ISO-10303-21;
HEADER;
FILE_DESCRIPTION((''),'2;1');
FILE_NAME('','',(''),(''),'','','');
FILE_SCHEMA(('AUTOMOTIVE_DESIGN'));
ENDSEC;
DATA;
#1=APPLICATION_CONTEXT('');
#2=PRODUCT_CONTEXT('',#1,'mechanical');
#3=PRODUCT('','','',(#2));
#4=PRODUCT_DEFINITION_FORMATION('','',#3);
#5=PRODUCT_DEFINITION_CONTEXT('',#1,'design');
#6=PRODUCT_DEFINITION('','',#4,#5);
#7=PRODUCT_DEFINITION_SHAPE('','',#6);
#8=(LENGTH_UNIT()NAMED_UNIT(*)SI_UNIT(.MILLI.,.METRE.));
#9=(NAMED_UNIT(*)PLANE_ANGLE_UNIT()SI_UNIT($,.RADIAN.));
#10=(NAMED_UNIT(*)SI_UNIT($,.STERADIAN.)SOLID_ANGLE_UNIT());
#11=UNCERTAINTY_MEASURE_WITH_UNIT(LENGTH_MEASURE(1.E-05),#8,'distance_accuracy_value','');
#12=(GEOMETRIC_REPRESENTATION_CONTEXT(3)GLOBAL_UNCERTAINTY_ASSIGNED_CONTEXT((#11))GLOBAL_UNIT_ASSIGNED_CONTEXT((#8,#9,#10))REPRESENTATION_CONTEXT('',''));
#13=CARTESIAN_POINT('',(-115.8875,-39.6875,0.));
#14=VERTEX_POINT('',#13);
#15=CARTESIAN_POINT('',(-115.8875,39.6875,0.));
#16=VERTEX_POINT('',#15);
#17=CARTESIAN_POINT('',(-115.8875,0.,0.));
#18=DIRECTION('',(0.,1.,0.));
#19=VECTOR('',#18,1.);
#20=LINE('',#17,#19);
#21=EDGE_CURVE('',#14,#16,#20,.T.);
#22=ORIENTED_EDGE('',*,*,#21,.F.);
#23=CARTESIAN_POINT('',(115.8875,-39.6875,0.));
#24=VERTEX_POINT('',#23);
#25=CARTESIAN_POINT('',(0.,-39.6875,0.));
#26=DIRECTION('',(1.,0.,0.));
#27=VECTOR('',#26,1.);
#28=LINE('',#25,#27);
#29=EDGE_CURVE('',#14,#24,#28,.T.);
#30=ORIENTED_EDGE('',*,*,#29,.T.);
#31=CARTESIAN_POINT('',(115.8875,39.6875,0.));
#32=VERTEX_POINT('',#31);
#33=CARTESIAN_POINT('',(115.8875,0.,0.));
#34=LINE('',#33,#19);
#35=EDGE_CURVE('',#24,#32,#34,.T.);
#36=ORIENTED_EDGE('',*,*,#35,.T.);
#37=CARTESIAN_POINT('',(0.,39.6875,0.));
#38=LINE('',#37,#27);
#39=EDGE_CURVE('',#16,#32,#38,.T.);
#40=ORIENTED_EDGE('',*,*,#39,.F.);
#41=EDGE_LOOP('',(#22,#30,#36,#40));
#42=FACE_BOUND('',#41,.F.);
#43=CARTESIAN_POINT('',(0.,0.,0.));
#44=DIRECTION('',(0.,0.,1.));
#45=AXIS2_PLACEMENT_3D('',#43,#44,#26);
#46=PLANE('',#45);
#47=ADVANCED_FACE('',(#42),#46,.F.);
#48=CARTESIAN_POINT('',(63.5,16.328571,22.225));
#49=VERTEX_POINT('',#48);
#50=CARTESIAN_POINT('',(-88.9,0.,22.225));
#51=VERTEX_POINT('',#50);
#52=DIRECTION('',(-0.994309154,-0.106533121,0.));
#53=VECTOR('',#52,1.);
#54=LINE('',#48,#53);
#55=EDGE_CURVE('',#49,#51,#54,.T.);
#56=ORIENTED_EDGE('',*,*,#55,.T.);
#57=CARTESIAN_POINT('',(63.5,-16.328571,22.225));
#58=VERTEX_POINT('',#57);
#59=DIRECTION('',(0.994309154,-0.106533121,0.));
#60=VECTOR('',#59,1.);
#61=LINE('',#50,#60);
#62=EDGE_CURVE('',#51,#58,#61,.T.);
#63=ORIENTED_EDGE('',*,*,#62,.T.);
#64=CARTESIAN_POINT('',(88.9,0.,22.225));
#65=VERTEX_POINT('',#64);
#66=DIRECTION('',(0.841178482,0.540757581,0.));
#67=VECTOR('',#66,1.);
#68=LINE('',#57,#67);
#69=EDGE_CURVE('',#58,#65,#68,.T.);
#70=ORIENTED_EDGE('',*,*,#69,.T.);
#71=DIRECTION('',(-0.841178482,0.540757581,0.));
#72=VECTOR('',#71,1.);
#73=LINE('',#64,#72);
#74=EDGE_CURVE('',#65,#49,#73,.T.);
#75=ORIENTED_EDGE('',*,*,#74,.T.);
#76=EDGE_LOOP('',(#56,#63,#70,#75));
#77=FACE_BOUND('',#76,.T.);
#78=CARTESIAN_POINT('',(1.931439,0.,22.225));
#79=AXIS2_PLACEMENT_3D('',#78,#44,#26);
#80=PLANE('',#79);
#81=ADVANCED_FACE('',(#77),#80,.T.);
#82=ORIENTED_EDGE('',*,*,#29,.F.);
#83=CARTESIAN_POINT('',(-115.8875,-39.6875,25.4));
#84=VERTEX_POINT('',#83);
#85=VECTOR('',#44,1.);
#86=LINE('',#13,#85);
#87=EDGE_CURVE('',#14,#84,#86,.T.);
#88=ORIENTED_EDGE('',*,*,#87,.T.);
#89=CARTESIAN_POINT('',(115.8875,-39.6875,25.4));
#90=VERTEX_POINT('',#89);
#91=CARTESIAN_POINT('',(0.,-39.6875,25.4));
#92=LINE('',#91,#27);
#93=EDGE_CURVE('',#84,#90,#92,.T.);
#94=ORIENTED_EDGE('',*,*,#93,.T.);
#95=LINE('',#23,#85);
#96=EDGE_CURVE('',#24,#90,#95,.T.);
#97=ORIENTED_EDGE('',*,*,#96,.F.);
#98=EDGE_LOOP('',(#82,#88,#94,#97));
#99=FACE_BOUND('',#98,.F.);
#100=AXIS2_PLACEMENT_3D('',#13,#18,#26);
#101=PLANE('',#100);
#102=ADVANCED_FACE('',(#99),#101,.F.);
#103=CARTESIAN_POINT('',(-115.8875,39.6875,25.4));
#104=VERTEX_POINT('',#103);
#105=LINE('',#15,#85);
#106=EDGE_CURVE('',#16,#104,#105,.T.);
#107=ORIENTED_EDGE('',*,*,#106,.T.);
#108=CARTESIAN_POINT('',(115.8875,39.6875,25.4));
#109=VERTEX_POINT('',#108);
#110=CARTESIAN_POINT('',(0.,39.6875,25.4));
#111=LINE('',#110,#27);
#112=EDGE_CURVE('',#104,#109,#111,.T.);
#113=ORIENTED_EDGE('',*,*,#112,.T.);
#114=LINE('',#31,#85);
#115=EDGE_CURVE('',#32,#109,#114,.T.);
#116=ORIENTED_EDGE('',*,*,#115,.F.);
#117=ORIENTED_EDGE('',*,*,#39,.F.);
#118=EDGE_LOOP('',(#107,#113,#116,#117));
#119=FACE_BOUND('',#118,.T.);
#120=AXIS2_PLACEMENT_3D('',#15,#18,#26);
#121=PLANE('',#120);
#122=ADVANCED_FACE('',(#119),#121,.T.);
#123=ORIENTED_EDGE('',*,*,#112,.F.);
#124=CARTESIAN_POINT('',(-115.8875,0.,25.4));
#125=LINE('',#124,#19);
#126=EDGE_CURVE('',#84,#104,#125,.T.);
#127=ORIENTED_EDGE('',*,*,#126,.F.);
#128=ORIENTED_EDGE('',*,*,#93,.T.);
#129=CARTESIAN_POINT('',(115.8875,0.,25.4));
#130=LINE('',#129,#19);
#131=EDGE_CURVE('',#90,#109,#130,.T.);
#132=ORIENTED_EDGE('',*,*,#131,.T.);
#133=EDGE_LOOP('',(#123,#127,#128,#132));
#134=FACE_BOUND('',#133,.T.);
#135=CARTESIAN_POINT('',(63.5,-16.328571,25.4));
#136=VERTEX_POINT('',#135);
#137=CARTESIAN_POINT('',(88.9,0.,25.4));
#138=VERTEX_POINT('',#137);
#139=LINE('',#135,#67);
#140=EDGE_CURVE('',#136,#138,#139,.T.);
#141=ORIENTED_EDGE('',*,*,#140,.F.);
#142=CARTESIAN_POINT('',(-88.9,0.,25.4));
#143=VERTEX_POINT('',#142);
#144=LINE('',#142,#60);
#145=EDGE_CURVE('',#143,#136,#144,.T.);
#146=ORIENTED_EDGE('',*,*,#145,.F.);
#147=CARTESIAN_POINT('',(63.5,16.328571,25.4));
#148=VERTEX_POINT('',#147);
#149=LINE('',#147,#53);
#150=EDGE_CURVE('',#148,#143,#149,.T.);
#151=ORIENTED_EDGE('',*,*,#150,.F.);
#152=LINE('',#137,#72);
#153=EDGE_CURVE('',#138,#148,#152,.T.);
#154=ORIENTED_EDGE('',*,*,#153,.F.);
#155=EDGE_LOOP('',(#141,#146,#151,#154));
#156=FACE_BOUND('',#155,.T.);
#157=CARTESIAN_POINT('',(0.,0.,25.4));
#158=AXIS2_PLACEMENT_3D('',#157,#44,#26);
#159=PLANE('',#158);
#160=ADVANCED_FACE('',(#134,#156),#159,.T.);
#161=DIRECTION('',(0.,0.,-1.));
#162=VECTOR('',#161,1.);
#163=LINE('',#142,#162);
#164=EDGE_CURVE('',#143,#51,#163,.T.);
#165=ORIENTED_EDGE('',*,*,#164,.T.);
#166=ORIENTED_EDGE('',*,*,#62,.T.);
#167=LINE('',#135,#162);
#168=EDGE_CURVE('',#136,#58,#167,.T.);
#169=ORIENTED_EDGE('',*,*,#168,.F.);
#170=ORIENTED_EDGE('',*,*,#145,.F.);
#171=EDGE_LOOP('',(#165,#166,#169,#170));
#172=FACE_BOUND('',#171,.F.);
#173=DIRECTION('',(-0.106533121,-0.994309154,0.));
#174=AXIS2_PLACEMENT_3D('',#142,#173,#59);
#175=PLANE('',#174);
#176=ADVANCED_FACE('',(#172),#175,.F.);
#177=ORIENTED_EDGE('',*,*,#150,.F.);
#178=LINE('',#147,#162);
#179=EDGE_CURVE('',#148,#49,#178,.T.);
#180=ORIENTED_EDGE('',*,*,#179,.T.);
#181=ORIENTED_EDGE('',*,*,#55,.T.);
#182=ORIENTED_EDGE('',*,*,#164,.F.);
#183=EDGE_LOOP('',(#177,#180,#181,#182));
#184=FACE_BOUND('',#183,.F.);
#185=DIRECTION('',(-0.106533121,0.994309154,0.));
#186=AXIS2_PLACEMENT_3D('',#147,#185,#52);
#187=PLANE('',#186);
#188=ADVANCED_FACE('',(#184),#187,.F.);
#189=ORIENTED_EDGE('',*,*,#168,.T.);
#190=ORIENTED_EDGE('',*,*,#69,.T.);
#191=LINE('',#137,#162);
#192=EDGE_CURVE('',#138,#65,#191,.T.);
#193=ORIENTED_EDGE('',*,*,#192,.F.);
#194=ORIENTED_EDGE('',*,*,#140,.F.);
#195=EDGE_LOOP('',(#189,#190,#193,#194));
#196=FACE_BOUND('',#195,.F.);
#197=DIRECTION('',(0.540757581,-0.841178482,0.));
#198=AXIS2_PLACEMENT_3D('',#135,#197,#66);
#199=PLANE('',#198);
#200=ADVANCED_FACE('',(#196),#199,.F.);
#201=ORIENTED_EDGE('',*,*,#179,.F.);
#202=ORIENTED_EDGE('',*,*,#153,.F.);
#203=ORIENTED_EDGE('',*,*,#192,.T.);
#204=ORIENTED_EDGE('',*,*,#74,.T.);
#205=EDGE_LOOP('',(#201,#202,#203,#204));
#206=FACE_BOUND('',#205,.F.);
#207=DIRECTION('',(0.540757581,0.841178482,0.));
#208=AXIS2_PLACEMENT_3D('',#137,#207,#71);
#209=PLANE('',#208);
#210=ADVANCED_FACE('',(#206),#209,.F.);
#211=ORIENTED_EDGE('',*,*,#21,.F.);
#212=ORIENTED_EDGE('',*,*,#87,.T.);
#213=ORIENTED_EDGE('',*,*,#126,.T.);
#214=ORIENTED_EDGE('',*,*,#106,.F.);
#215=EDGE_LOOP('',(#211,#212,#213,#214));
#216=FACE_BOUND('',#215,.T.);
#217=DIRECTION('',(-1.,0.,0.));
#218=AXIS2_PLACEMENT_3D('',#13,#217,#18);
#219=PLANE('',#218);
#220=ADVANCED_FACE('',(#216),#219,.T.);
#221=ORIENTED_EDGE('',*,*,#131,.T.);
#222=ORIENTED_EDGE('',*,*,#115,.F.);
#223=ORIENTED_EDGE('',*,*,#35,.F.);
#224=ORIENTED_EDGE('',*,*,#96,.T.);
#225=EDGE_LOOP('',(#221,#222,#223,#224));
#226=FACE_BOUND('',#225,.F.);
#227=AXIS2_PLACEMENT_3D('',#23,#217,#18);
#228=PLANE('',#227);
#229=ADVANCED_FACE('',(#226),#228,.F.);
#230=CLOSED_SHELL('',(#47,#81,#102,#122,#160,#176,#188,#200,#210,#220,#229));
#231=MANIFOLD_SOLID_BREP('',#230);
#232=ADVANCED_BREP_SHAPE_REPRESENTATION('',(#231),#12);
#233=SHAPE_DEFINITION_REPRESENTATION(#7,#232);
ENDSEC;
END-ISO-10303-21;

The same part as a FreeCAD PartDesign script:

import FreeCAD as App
import Part
import Sketcher
Q = App.Units.Quantity

doc = App.newDocument("Part")
params = doc.addObject("Spreadsheet::Sheet", "Params")
for row, (alias, value) in enumerate([
    ("sketch1_width", "9.125 in"),
    ("sketch1_height", "3.125 in"),
    ("pad1_length", "1 in"),
    ("pocket1_length", "0.125 in"),
], start=1):
    params.set(f"A{row}", alias)
    params.set(f"B{row}", "=" + value)
    params.setAlias(f"B{row}", alias)

body = doc.addObject("PartDesign::Body", "Body")

# Sketch on XY plane
sketch1 = body.newObject("Sketcher::SketchObject", "Sketch")
sketch1.AttachmentSupport = (doc.getObject("XY_Plane"), [""])
sketch1.MapMode = "FlatFace"
sketch1.addGeometry(Part.LineSegment(App.Vector(-115.8875, 39.6875, 0), App.Vector(-115.8875, -39.6875, 0)), False)
sketch1.addGeometry(Part.LineSegment(App.Vector(-115.8875, -39.6875, 0), App.Vector(115.8875, -39.6875, 0)), False)
sketch1.addGeometry(Part.LineSegment(App.Vector(115.8875, -39.6875, 0), App.Vector(115.8875, 39.6875, 0)), False)
sketch1.addGeometry(Part.LineSegment(App.Vector(115.8875, 39.6875, 0), App.Vector(-115.8875, 39.6875, 0)), False)
sketch1.addConstraint(Sketcher.Constraint("Coincident", 0, 2, 1, 1))
sketch1.addConstraint(Sketcher.Constraint("Coincident", 1, 2, 2, 1))
sketch1.addConstraint(Sketcher.Constraint("Coincident", 2, 2, 3, 1))
sketch1.addConstraint(Sketcher.Constraint("Coincident", 3, 2, 0, 1))
sketch1.addConstraint(Sketcher.Constraint("Vertical", 0))
sketch1.addConstraint(Sketcher.Constraint("Horizontal", 1))
sketch1.addConstraint(Sketcher.Constraint("Vertical", 2))
sketch1.addConstraint(Sketcher.Constraint("Horizontal", 3))
sketch1.addConstraint(Sketcher.Constraint("Symmetric", 0, 2, 2, 2, -1, 1))
sketch1.addConstraint(Sketcher.Constraint("DistanceX", 1, 1, 1, 2, Q("9.125 in")))
sketch1.addConstraint(Sketcher.Constraint("DistanceY", 0, 2, 0, 1, Q("3.125 in")))
sketch1.setExpression("Constraints[9]", "Params.sketch1_width")
sketch1.setExpression("Constraints[10]", "Params.sketch1_height")
pad1 = body.newObject("PartDesign::Pad", "Pad")
pad1.Profile = sketch1
pad1.setExpression("Length", "Params.pad1_length")

# Sketch on XY plane
sketch2 = body.newObject("Sketcher::SketchObject", "Sketch001")
sketch2.AttachmentSupport = (doc.getObject("XY_Plane"), [""])
sketch2.MapMode = "FlatFace"
sketch2.AttachmentOffset = App.Placement(App.Vector(0, 0, 1 * 25.4), App.Rotation())
sketch2.addGeometry(Part.LineSegment(App.Vector(63.5, 16.328571, 0), App.Vector(-88.9, 0, 0)), False)
sketch2.addGeometry(Part.LineSegment(App.Vector(-88.9, 0, 0), App.Vector(63.5, -16.328571, 0)), False)
sketch2.addGeometry(Part.LineSegment(App.Vector(63.5, -16.328571, 0), App.Vector(88.9, 0, 0)), False)
sketch2.addGeometry(Part.LineSegment(App.Vector(88.9, 0, 0), App.Vector(63.5, 16.328571, 0)), False)
sketch2.addConstraint(Sketcher.Constraint("Coincident", 0, 2, 1, 1))
sketch2.addConstraint(Sketcher.Constraint("Coincident", 1, 2, 2, 1))
sketch2.addConstraint(Sketcher.Constraint("Coincident", 2, 2, 3, 1))
sketch2.addConstraint(Sketcher.Constraint("Coincident", 3, 2, 0, 1))
sketch2.addConstraint(Sketcher.Constraint("Symmetric", 0, 2, 2, 2, -1, 1))
sketch2.addConstraint(Sketcher.Constraint("Symmetric", 1, 2, 3, 2, -1))
sketch2.addConstraint(Sketcher.Constraint("PointOnObject", 0, 2, -1))
sketch2.addConstraint(Sketcher.Constraint("DistanceX", 0, 2, 1, 2, Q("6 in")))
sketch2.addConstraint(Sketcher.Constraint("DistanceX", 1, 2, 2, 2, Q("1 in")))
sketch2.addConstraint(Sketcher.Constraint("Distance", 0, 153.272249))
pocket1 = body.newObject("PartDesign::Pocket", "Pocket")
pocket1.Profile = sketch2
pocket1.setExpression("Length", "Params.pocket1_length")

doc.recompute()
